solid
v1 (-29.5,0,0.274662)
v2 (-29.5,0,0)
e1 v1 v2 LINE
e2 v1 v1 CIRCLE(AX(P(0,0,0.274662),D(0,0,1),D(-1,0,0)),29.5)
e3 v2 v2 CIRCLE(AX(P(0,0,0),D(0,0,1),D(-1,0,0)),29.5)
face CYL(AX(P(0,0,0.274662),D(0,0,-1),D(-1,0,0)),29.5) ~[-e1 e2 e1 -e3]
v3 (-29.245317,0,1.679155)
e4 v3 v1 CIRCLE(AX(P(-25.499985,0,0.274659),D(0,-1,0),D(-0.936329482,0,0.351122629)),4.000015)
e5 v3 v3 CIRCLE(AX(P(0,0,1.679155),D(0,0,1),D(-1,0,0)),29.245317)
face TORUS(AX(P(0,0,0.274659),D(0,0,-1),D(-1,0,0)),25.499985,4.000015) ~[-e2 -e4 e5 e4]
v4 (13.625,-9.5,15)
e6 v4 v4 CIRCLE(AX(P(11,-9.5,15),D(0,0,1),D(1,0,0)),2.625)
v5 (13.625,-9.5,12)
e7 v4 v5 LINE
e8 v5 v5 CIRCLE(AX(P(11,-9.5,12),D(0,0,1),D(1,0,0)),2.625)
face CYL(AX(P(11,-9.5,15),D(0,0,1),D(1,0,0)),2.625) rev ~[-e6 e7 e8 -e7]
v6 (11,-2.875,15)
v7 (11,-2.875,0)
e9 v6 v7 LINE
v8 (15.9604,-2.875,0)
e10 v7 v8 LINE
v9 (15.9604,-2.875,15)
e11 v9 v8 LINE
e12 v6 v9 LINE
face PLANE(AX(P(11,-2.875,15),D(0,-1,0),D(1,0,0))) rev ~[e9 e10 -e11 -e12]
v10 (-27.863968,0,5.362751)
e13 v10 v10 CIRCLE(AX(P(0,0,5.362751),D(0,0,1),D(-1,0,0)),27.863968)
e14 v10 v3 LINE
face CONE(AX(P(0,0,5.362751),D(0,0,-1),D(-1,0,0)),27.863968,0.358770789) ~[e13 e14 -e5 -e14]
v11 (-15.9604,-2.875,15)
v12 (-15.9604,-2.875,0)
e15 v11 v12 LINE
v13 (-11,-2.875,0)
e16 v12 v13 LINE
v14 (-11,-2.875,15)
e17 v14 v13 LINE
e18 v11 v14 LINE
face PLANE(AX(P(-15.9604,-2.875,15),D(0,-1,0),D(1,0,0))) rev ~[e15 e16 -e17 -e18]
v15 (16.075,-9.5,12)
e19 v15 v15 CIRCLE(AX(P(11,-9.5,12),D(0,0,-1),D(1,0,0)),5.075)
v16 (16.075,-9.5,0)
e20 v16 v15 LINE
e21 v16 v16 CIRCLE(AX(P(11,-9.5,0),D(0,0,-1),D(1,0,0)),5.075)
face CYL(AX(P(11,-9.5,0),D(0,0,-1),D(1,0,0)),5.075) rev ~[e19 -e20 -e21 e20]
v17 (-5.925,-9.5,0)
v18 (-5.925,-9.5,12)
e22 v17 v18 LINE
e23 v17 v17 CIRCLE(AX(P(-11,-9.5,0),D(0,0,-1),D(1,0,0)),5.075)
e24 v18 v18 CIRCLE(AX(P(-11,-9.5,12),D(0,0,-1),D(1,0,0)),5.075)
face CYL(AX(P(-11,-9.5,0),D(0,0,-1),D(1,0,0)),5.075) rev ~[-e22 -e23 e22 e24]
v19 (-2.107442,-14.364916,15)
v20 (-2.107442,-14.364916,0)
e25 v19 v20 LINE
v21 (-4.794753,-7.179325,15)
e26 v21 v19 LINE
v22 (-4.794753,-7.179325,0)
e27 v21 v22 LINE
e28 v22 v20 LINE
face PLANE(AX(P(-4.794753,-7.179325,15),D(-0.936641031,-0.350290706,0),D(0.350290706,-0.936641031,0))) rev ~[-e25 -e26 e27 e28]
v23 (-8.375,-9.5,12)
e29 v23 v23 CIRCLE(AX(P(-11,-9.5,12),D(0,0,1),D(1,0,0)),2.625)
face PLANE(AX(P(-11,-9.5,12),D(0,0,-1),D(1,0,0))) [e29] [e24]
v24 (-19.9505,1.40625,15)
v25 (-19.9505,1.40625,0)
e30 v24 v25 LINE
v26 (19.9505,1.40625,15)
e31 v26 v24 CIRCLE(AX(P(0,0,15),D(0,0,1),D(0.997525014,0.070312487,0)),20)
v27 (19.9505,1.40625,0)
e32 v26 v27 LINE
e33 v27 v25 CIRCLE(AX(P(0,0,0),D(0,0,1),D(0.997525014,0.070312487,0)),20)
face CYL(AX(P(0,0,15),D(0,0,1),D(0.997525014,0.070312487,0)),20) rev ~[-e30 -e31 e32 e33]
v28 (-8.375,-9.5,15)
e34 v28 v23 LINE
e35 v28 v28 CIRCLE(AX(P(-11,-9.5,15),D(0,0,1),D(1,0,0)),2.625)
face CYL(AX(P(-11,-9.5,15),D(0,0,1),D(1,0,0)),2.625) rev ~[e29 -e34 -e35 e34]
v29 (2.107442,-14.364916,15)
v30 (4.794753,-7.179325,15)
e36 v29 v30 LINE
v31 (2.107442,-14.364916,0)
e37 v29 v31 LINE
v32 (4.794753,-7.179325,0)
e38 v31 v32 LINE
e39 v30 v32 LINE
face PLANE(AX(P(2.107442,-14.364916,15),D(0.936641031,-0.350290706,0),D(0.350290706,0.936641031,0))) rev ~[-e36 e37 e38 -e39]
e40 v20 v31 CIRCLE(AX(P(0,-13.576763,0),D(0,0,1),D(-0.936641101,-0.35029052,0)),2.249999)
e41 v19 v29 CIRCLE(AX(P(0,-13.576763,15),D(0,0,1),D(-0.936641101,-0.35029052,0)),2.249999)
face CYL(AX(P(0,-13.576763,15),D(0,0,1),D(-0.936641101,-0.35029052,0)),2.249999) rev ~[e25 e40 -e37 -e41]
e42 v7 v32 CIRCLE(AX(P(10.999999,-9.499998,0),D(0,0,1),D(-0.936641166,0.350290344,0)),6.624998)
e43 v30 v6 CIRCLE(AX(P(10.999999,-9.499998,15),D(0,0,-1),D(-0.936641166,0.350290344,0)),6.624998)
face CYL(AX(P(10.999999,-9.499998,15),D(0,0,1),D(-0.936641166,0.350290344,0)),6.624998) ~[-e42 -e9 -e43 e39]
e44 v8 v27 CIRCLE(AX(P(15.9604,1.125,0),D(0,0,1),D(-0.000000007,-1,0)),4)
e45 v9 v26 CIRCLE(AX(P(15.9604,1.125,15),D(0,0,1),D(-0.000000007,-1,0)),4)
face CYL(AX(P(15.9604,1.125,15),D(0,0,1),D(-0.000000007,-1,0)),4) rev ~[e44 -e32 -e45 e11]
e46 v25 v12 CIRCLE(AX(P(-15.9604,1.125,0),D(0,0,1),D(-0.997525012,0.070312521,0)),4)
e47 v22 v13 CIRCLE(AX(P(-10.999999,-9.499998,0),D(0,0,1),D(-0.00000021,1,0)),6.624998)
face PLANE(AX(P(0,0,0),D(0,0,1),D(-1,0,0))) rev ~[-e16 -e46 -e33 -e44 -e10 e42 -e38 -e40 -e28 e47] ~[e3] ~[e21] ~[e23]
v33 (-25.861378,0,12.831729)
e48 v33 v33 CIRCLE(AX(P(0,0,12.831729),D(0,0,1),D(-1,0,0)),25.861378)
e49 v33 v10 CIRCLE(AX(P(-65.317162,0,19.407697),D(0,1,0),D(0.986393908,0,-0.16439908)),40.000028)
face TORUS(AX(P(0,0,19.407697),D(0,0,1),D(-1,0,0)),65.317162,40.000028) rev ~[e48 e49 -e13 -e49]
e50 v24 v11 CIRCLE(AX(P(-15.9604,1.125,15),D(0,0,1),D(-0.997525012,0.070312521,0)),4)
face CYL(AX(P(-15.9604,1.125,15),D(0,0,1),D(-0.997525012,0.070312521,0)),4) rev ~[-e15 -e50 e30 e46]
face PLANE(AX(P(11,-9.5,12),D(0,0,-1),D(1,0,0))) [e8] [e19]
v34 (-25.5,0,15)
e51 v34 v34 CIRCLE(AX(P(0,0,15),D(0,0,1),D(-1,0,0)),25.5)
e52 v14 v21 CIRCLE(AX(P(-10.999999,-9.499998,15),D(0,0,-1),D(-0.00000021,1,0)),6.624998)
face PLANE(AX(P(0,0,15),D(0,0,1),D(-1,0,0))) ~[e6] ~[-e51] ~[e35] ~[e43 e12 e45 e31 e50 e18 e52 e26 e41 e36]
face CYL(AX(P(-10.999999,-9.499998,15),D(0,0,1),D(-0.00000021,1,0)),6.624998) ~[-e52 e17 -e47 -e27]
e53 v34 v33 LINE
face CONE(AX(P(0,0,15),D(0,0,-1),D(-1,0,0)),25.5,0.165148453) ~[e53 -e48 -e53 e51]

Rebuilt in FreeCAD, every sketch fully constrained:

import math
import FreeCAD as App
import Part
import Sketcher
from FreeCAD import Vector
Q = App.Units.Quantity

doc = App.newDocument("Part")
body = doc.addObject("PartDesign::Body", "Body")

# Sketch on XZ plane
sketch1 = body.newObject("Sketcher::SketchObject", "Sketch")
sketch1.AttachmentSupport = (doc.getObject("XZ_Plane"), [""])
sketch1.MapMode = "FlatFace"
sketch1.addGeometry([
    Part.LineSegment(Vector(-29.5, 0.27, 0), Vector(-29.5, 0, 0)),  # 0
    Part.LineSegment(Vector(-29.5, 0, 0), Vector(0, 0, 0)),  # 1
    Part.LineSegment(Vector(0, 0, 0), Vector(0, 15, 0)),  # 2
    Part.LineSegment(Vector(0, 15, 0), Vector(-25.5, 15, 0)),  # 3
    Part.LineSegment(Vector(-25.5, 15, 0), Vector(-25.86, 12.83, 0)),  # 4
    Part.ArcOfCircle(Part.Circle(Vector(-65.32, 19.41, 0), Vector(0, 0, 1), 40), math.radians(-20.56), math.radians(-9.46)),  # 5
    Part.LineSegment(Vector(-27.86, 5.36, 0), Vector(-29.25, 1.68, 0)),  # 6
    Part.ArcOfCircle(Part.Circle(Vector(-25.5, 0.27, 0), Vector(0, 0, 1), 4), math.radians(159), math.radians(180)),  # 7
], False)
sketch1.addConstraint([
    Sketcher.Constraint("Coincident", 0, 2, 1, 1),
    Sketcher.Constraint("Coincident", 1, 2, 2, 1),
    Sketcher.Constraint("Coincident", 2, 2, 3, 1),
    Sketcher.Constraint("Coincident", 3, 2, 4, 1),
    Sketcher.Constraint("Tangent", 4, 2, 5, 2),
    Sketcher.Constraint("Tangent", 5, 1, 6, 1),
    Sketcher.Constraint("Tangent", 6, 2, 7, 1),
    Sketcher.Constraint("Tangent", 7, 2, 0, 1),
    Sketcher.Constraint("Vertical", 0),
    Sketcher.Constraint("Horizontal", 1),
    Sketcher.Constraint("Vertical", 2),
    Sketcher.Constraint("Horizontal", 3),
    Sketcher.Constraint("Coincident", 1, 2, -1, 1),
    Sketcher.Constraint("DistanceY", 2, 1, 2, 2, Q("15 mm")),
    Sketcher.Constraint("DistanceX", 1, 1, 1, 2, Q("29.5 mm")),
    Sketcher.Constraint("DistanceX", 3, 2, 3, 1, Q("25.5 mm")),
    Sketcher.Constraint("Radius", 5, Q("40.000028 mm")),
    Sketcher.Constraint("Radius", 7, Q("4.000015 mm")),
    Sketcher.Constraint("Distance", 4, Q("2.19818 mm")),
    Sketcher.Constraint("DistanceY", 0, 2, 0, 1, Q("0.274662 mm")),
    Sketcher.Constraint("DistanceX", 5, 3, -1, 1, Q("65.317162 mm")),
])
revolution = body.newObject("PartDesign::Revolution", "Revolution")
revolution.Profile = sketch1
revolution.ReferenceAxis = (sketch1, ["V_Axis"])
revolution.Angle = 360

# Sketch on XY plane
sketch2 = body.newObject("Sketcher::SketchObject", "Sketch001")
sketch2.AttachmentSupport = (doc.getObject("XY_Plane"), [""])
sketch2.MapMode = "FlatFace"
sketch2.AttachmentOffset = App.Placement(Vector(0, 0, 15), App.Rotation())
sketch2.addGeometry([
    Part.ArcOfCircle(Part.Circle(Vector(15.9604, 1.125, 0), Vector(0, 0, 1), 4), math.radians(-90), math.radians(4.031938)),  # 0
    Part.ArcOfCircle(Part.Circle(Vector(0, 0, 0), Vector(0, 0, 1), 20), math.radians(4.031936), math.radians(175.968064)),  # 1
    Part.ArcOfCircle(Part.Circle(Vector(-15.9604, 1.125, 0), Vector(0, 0, 1), 4), math.radians(175.968062), math.radians(270)),  # 2
    Part.LineSegment(Vector(-15.9604, -2.875, 0), Vector(-11, -2.875, 0)),  # 3
    Part.ArcOfCircle(Part.Circle(Vector(-10.999999, -9.499998, 0), Vector(0, 0, 1), 6.624998), math.radians(20.505075), math.radians(90.000012)),  # 4
    Part.LineSegment(Vector(-4.794753, -7.179325, 0), Vector(-2.107442, -14.364916, 0)),  # 5
    Part.ArcOfCircle(Part.Circle(Vector(0, -13.576763, 0), Vector(0, 0, 1), 2.249999), math.radians(-159.494914), math.radians(-20.505086)),  # 6
    Part.LineSegment(Vector(2.107442, -14.364916, 0), Vector(4.794753, -7.179325, 0)),  # 7
    Part.ArcOfCircle(Part.Circle(Vector(10.999999, -9.499998, 0), Vector(0, 0, 1), 6.624998), math.radians(89.999988), math.radians(159.494925)),  # 8
    Part.LineSegment(Vector(11, -2.875, 0), Vector(15.9604, -2.875, 0)),  # 9
    Part.Circle(Vector(-11, -9.5, 0), Vector(0, 0, 1), 2.625),  # 10
    Part.Circle(Vector(11, -9.5, 0), Vector(0, 0, 1), 2.625),  # 11
], False)
sketch2.addConstraint([
    Sketcher.Constraint("Coincident", 0, 2, 1, 1),
    Sketcher.Constraint("Coincident", 1, 2, 2, 1),
    Sketcher.Constraint("Coincident", 2, 2, 3, 1),
    Sketcher.Constraint("Coincident", 3, 2, 4, 2),
    Sketcher.Constraint("Coincident", 4, 1, 5, 1),
    Sketcher.Constraint("Coincident", 5, 2, 6, 1),
    Sketcher.Constraint("Coincident", 6, 2, 7, 1),
    Sketcher.Constraint("Coincident", 7, 2, 8, 2),
    Sketcher.Constraint("Coincident", 8, 1, 9, 1),
    Sketcher.Constraint("Coincident", 9, 2, 0, 1),
    Sketcher.Constraint("Horizontal", 3),
    Sketcher.Constraint("Horizontal", 9),
    Sketcher.Constraint("Coincident", 1, 3, -1, 1),
    Sketcher.Constraint("Coincident", 10, 3, 4, 3),
    Sketcher.Constraint("Coincident", 11, 3, 8, 3),
    Sketcher.Constraint("PointOnObject", 6, 3, -2),
    Sketcher.Constraint("Radius", 0, Q("4 mm")),
    Sketcher.Constraint("Radius", 1, Q("20 mm")),
    Sketcher.Constraint("Radius", 2, Q("4 mm")),
    Sketcher.Constraint("Diameter", 10, Q("5.25 mm")),
    Sketcher.Constraint("Diameter", 11, Q("5.25 mm")),
    Sketcher.Constraint("Radius", 6, Q("2.249999 mm")),
    Sketcher.Constraint("DistanceX", 4, 3, -1, 1, Q("10.999999 mm")),
    Sketcher.Constraint("DistanceX", -1, 1, 8, 3, Q("10.999999 mm")),
    Sketcher.Constraint("DistanceX", 3, 2, -1, 1, Q("11 mm")),
    Sketcher.Constraint("DistanceX", -1, 1, 8, 1, Q("11 mm")),
    Sketcher.Constraint("DistanceY", 10, 3, -1, 1, Q("9.5 mm")),
    Sketcher.Constraint("DistanceY", 11, 3, -1, 1, Q("9.5 mm")),
    Sketcher.Constraint("DistanceX", 3, 1, 3, 2, Q("4.9604 mm")),
    Sketcher.Constraint("DistanceX", 9, 1, 9, 2, Q("4.9604 mm")),
    Sketcher.Constraint("DistanceY", -1, 1, 0, 3, Q("1.125 mm")),
    Sketcher.Constraint("DistanceY", -1, 1, 2, 3, Q("1.125 mm")),
    Sketcher.Constraint("DistanceX", -1, 1, 0, 2, Q("19.9505 mm")),
    Sketcher.Constraint("DistanceX", 1, 2, -1, 1, Q("19.9505 mm")),
    Sketcher.Constraint("Distance", 5, Q("7.671659 mm")),
    Sketcher.Constraint("Distance", 7, Q("7.671659 mm")),
    Sketcher.Constraint("DistanceX", 5, 2, -1, 1, Q("2.107442 mm")),
    Sketcher.Constraint("DistanceX", 4, 1, 5, 2, Q("2.687311 mm")),
    Sketcher.Constraint("DistanceY", 6, 2, 4, 1, Q("7.185591 mm")),
])
pocket1 = body.newObject("PartDesign::Pocket", "Pocket")
pocket1.Profile = sketch2
pocket1.Type = "ThroughAll"

# Sketch on XY plane
sketch3 = body.newObject("Sketcher::SketchObject", "Sketch002")
sketch3.AttachmentSupport = (doc.getObject("XY_Plane"), [""])
sketch3.MapMode = "FlatFace"
sketch3.addGeometry([
    Part.Circle(Vector(11, -10, 0), Vector(0, 0, 1), 5),
    Part.Circle(Vector(-11, -10, 0), Vector(0, 0, 1), 5),
], False)
sketch3.addConstraint([
    Sketcher.Constraint("Equal", 0, 1),
    Sketcher.Constraint("Symmetric", 0, 3, 1, 3, -2),
    Sketcher.Constraint("Diameter", 0, Q("10.15 mm")),
    Sketcher.Constraint("DistanceX", -1, 1, 0, 3, Q("11 mm")),
    Sketcher.Constraint("DistanceY", 0, 3, -1, 1, Q("9.5 mm")),
])
pocket2 = body.newObject("PartDesign::Pocket", "Pocket001")
pocket2.Profile = sketch3
pocket2.Length = 12
pocket2.Reversed = True

doc.recompute()
